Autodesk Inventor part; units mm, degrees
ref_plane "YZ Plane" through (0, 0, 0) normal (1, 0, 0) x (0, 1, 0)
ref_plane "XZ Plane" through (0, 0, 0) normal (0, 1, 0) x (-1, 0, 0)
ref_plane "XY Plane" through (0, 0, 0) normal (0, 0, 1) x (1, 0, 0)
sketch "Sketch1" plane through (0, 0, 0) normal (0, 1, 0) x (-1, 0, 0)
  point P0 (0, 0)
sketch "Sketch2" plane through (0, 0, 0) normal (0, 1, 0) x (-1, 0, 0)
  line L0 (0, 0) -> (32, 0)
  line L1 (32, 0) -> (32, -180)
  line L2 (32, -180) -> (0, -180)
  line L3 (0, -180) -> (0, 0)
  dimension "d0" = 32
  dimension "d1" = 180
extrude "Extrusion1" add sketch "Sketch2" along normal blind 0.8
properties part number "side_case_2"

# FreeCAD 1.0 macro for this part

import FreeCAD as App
import Part
import Sketcher
Q = App.Units.Quantity


def add_polygon(sketch, points):
    """Adds a closed chain of lines whose ends are joined by coincident constraints."""
    first, n = sketch.GeometryCount, len(points)
    for a, b in zip(points, points[1:] + points[:1]):
        sketch.addGeometry(Part.LineSegment(App.Vector(*a, 0), App.Vector(*b, 0)), False)
    for i in range(n):
        sketch.addConstraint(Sketcher.Constraint("Coincident", first + i, 2, first + (i + 1) % n, 1))

doc = App.newDocument("Part")
body = doc.addObject("PartDesign::Body", "Body")

# Sketch on XZ plane
sketch1 = body.newObject("Sketcher::SketchObject", "Sketch")
sketch1.AttachmentSupport = (doc.getObject("XZ_Plane"), [""])
sketch1.MapMode = "FlatFace"
add_polygon(sketch1, [(-32, 0), (0, 0), (0, -180), (-32, -180)])  # lines 0-3
sketch1.addConstraint(Sketcher.Constraint("Horizontal", 0))
sketch1.addConstraint(Sketcher.Constraint("Vertical", 1))
sketch1.addConstraint(Sketcher.Constraint("Horizontal", 2))
sketch1.addConstraint(Sketcher.Constraint("Vertical", 3))
sketch1.addConstraint(Sketcher.Constraint("Coincident", 0, 2, -1, 1))
sketch1.addConstraint(Sketcher.Constraint("DistanceX", 0, 1, 0, 2, Q("32 mm")))
sketch1.addConstraint(Sketcher.Constraint("DistanceY", 1, 2, 1, 1, Q("180 mm")))
pad1 = body.newObject("PartDesign::Pad", "Pad")
pad1.Profile = sketch1
pad1.Length = 0.8
pad1.Reversed = True

doc.recompute()
